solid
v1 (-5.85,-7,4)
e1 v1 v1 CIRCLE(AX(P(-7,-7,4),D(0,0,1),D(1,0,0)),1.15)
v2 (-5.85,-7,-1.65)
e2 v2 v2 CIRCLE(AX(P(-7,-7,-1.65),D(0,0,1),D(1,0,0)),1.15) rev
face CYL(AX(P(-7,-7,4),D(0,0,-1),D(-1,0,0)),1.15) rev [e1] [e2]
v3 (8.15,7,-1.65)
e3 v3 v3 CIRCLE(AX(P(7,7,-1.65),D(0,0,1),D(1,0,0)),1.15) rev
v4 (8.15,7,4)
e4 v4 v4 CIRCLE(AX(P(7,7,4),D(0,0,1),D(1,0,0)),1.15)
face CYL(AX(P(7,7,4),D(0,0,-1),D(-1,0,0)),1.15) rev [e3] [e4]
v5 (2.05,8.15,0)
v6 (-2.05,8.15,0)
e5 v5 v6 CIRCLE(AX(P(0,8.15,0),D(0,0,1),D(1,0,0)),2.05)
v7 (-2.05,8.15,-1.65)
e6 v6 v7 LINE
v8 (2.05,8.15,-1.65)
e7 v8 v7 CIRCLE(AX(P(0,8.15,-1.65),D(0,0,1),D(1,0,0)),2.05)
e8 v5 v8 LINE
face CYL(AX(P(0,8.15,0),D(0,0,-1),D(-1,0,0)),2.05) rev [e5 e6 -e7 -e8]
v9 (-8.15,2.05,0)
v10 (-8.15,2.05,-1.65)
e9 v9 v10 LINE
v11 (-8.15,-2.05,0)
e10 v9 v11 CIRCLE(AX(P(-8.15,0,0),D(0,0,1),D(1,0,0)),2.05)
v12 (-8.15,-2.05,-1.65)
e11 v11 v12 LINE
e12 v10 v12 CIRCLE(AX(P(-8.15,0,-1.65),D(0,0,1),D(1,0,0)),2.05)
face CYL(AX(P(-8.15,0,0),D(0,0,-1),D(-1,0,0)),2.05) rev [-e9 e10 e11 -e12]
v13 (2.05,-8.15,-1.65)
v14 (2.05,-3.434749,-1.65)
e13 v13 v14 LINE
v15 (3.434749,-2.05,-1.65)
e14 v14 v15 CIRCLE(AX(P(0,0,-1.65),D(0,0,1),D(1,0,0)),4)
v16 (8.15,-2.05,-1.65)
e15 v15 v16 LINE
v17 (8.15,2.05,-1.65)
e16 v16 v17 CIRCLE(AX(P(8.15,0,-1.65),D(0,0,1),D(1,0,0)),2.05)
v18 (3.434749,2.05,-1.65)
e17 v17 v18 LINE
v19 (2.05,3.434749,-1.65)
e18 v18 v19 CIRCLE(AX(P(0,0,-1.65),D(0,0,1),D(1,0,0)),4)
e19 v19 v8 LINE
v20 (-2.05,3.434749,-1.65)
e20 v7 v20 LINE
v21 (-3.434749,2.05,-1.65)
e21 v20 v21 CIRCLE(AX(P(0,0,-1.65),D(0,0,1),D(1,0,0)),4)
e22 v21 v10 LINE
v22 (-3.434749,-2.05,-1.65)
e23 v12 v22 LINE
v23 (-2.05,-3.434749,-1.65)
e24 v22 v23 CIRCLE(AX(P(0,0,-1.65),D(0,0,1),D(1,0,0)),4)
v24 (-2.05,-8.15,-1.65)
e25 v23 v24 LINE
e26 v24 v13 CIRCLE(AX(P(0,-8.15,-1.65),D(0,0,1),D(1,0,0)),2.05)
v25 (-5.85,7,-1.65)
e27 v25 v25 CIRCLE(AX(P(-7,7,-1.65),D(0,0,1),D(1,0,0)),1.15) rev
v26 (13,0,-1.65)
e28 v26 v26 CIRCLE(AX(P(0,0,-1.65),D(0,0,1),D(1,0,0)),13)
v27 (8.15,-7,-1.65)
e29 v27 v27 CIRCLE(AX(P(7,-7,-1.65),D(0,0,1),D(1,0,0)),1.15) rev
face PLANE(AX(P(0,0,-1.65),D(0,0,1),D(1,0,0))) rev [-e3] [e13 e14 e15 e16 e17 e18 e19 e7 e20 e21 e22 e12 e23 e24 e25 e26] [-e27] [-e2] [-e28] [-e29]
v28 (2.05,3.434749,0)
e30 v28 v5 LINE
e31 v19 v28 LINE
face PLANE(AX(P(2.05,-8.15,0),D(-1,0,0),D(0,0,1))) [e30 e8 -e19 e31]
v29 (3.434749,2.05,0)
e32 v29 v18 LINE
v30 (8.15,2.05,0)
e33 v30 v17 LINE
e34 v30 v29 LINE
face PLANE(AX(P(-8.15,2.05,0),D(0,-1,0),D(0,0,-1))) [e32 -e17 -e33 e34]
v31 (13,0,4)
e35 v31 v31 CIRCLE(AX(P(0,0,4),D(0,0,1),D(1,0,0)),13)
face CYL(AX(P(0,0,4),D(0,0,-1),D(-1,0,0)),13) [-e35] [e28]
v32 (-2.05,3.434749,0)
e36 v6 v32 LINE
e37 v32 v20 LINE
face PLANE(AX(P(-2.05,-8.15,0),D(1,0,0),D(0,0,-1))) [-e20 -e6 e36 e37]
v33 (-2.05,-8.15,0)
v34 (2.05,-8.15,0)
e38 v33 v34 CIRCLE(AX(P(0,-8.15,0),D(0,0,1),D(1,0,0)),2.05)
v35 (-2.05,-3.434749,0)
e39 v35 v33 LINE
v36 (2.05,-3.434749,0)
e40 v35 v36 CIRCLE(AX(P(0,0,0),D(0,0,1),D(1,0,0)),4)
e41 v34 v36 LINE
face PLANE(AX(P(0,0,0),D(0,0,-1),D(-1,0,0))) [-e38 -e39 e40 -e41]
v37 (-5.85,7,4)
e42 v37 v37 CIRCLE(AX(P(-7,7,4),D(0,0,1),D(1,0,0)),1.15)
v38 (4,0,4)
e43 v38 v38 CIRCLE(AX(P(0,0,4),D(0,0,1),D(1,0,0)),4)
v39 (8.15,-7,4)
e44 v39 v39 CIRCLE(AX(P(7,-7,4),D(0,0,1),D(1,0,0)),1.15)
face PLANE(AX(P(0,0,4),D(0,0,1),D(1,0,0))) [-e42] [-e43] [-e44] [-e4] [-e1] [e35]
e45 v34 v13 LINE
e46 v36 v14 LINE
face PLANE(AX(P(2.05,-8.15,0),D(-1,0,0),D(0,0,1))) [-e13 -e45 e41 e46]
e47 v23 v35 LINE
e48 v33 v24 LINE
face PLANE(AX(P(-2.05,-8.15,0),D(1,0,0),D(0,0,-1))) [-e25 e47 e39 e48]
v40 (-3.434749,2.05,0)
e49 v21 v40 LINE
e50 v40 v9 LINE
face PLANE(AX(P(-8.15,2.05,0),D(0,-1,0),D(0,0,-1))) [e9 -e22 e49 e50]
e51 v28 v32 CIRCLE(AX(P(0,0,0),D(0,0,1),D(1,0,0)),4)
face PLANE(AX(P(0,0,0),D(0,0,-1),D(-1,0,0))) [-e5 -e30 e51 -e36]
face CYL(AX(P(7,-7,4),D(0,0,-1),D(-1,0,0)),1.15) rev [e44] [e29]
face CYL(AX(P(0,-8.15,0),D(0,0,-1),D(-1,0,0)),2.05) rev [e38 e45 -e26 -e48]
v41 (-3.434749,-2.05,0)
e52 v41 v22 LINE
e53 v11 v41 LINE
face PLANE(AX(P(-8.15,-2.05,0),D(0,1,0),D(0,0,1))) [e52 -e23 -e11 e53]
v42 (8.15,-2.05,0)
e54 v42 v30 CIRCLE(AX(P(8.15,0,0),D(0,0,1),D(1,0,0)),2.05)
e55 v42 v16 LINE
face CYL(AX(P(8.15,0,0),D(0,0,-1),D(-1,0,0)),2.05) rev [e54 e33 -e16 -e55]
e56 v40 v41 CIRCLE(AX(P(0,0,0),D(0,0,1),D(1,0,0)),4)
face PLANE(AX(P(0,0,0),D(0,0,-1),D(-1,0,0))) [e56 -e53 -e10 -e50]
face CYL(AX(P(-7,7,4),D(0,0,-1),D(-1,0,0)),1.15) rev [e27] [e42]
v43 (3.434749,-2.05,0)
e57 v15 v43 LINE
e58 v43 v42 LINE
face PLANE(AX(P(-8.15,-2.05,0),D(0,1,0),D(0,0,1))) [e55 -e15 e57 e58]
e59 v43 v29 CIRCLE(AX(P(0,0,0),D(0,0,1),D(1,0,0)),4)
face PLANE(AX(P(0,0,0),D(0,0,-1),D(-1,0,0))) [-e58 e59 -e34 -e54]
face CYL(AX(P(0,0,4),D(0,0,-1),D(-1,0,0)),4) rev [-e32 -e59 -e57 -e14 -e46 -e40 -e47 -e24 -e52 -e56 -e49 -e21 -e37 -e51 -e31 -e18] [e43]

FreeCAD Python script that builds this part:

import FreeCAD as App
import Part
import Sketcher


def add_polygon(sketch, points):
    """Adds a closed chain of lines whose ends are joined by coincident constraints."""
    first, n = sketch.GeometryCount, len(points)
    for a, b in zip(points, points[1:] + points[:1]):
        sketch.addGeometry(Part.LineSegment(App.Vector(*a, 0), App.Vector(*b, 0)), False)
    for i in range(n):
        sketch.addConstraint(Sketcher.Constraint("Coincident", first + i, 2, first + (i + 1) % n, 1))

doc = App.newDocument("Part")
params = doc.addObject("Spreadsheet::Sheet", "Params")
for row, (alias, value) in enumerate([
    ("sketch1_diameter", "26 mm"),
    ("sketch1_diameter2", "8 mm"),
    ("pad1_length", "4 mm"),
    ("sketch2_diameter", "26 mm"),
    ("pad2_length", "1.65 mm"),
    ("sketch3_diameter", "7 mm"),
    ("pocket1_length", "1.65 mm"),
    ("sketch4_width", "16.3 mm"),
    ("sketch4_height", "4.1 mm"),
    ("pocket2_length", "1.65 mm"),
    ("sketch5_width", "4.1 mm"),
    ("sketch5_height", "16.3 mm"),
    ("pocket3_length", "1.65 mm"),
    ("sketch6_diameter", "4.1 mm"),
    ("pocket4_length", "1.65 mm"),
    ("sketch7_diameter", "2.3 mm"),
    ("sketch8_diameter", "8 mm"),
    ("pocket6_length", "1.65 mm"),
], start=1):
    params.set(f"A{row}", alias)
    params.set(f"B{row}", "=" + value)
    params.setAlias(f"B{row}", alias)

body = doc.addObject("PartDesign::Body", "Body")

sketch1 = doc.addObject("Sketcher::SketchObject", "Sketch")
body.addObject(sketch1)
sketch1.AttachmentSupport = (doc.XY_Plane, [""])
sketch1.MapMode = "FlatFace"
sketch1.addGeometry([
    Part.Circle(App.Vector(0, 0, 0), App.Vector(0, 0, 1), 13),
    Part.Circle(App.Vector(0, 0, 0), App.Vector(0, 0, 1), 4),
], False)
sketch1.addConstraint([
    Sketcher.Constraint("Coincident", 0, 3, -1, 1),
    Sketcher.Constraint("Coincident", 1, 3, -1, 1),
    Sketcher.Constraint("Diameter", 0, 26.0),
    Sketcher.Constraint("Diameter", 1, 8.0),
])
sketch1.setExpression("Constraints[2]", "Params.sketch1_diameter")
sketch1.setExpression("Constraints[3]", "Params.sketch1_diameter2")
pad1 = doc.addObject("PartDesign::Pad", "Pad")
body.addObject(pad1)
pad1.Profile = sketch1
pad1.setExpression("Length", "Params.pad1_length")

sketch2 = doc.addObject("Sketcher::SketchObject", "Sketch001")
body.addObject(sketch2)
sketch2.AttachmentSupport = (doc.XY_Plane, [""])
sketch2.MapMode = "FlatFace"
sketch2.AttachmentOffset = App.Placement(App.Vector(0, 0, -1.65), App.Rotation())
sketch2.addGeometry(Part.Circle(App.Vector(0, 0, 0), App.Vector(0, 0, 1), 13), False)
sketch2.addConstraint([
    Sketcher.Constraint("Coincident", 0, 3, -1, 1),
    Sketcher.Constraint("Diameter", 0, 26.0),
])
sketch2.setExpression("Constraints[1]", "Params.sketch2_diameter")
pad2 = doc.addObject("PartDesign::Pad", "Pad001")
body.addObject(pad2)
pad2.Profile = sketch2
pad2.setExpression("Length", "Params.pad2_length")

sketch3 = doc.addObject("Sketcher::SketchObject", "Sketch002")
body.addObject(sketch3)
sketch3.AttachmentSupport = (doc.XY_Plane, [""])
sketch3.MapMode = "FlatFace"
sketch3.AttachmentOffset = App.Placement(App.Vector(0, 0, -1.65), App.Rotation())
sketch3.addGeometry(Part.Circle(App.Vector(0, 0, 0), App.Vector(0, 0, 1), 3.5), False)
sketch3.addConstraint([
    Sketcher.Constraint("Coincident", 0, 3, -1, 1),
    Sketcher.Constraint("Diameter", 0, 7.0),
])
sketch3.setExpression("Constraints[1]", "Params.sketch3_diameter")
pocket1 = doc.addObject("PartDesign::Pocket", "Pocket")
body.addObject(pocket1)
pocket1.Profile = sketch3
pocket1.setExpression("Length", "Params.pocket1_length")
pocket1.Reversed = True

sketch4 = doc.addObject("Sketcher::SketchObject", "Sketch003")
body.addObject(sketch4)
sketch4.AttachmentSupport = (doc.XY_Plane, [""])
sketch4.MapMode = "FlatFace"
sketch4.AttachmentOffset = App.Placement(App.Vector(0, 0, -1.65), App.Rotation())
add_polygon(sketch4, [(-8.2, 2), (-8.2, -2), (8.2, -2), (8.2, 2)])
sketch4.addConstraint([
    Sketcher.Constraint("Vertical", 0),
    Sketcher.Constraint("Horizontal", 1),
    Sketcher.Constraint("Vertical", 2),
    Sketcher.Constraint("Horizontal", 3),
    Sketcher.Constraint("Symmetric", 0, 2, 2, 2, -1, 1),
    Sketcher.Constraint("DistanceX", 1, 1, 1, 2, 16.3),
    Sketcher.Constraint("DistanceY", 0, 2, 0, 1, 4.1),
])
sketch4.setExpression("Constraints[9]", "Params.sketch4_width")
sketch4.setExpression("Constraints[10]", "Params.sketch4_height")
pocket2 = doc.addObject("PartDesign::Pocket", "Pocket001")
body.addObject(pocket2)
pocket2.Profile = sketch4
pocket2.setExpression("Length", "Params.pocket2_length")
pocket2.Reversed = True

sketch5 = doc.addObject("Sketcher::SketchObject", "Sketch004")
body.addObject(sketch5)
sketch5.AttachmentSupport = (doc.XY_Plane, [""])
sketch5.MapMode = "FlatFace"
sketch5.AttachmentOffset = App.Placement(App.Vector(0, 0, -1.65), App.Rotation())
add_polygon(sketch5, [(-2, 8.2), (-2, -8.2), (2, -8.2), (2, 8.2)])
sketch5.addConstraint([
    Sketcher.Constraint("Vertical", 0),
    Sketcher.Constraint("Horizontal", 1),
    Sketcher.Constraint("Vertical", 2),
    Sketcher.Constraint("Horizontal", 3),
    Sketcher.Constraint("Symmetric", 0, 2, 2, 2, -1, 1),
    Sketcher.Constraint("DistanceX", 1, 1, 1, 2, 4.1),
    Sketcher.Constraint("DistanceY", 0, 2, 0, 1, 16.3),
])
sketch5.setExpression("Constraints[9]", "Params.sketch5_width")
sketch5.setExpression("Constraints[10]", "Params.sketch5_height")
pocket3 = doc.addObject("PartDesign::Pocket", "Pocket002")
body.addObject(pocket3)
pocket3.Profile = sketch5
pocket3.setExpression("Length", "Params.pocket3_length")
pocket3.Reversed = True

sketch6 = doc.addObject("Sketcher::SketchObject", "Sketch005")
body.addObject(sketch6)
sketch6.AttachmentSupport = (doc.XY_Plane, [""])
sketch6.MapMode = "FlatFace"
sketch6.AttachmentOffset = App.Placement(App.Vector(0, 0, -1.65), App.Rotation())
sketch6.addGeometry([
    Part.Circle(App.Vector(8.2, 0, 0), App.Vector(0, 0, 1), 2),
    Part.Circle(App.Vector(-8.2, 0, 0), App.Vector(0, 0, 1), 2),
    Part.Circle(App.Vector(0, 8.2, 0), App.Vector(0, 0, 1), 2),
    Part.Circle(App.Vector(0, -8.2, 0), App.Vector(0, 0, 1), 2),
], False)
sketch6.addConstraint([
    Sketcher.Constraint("Equal", 0, 1),
    Sketcher.Constraint("Equal", 1, 2),
    Sketcher.Constraint("Equal", 2, 3),
    Sketcher.Constraint("Symmetric", 0, 3, 1, 3, -1, 1),
    Sketcher.Constraint("Symmetric", 2, 3, 3, 3, -1, 1),
    Sketcher.Constraint("PointOnObject", 0, 3, -1),
    Sketcher.Constraint("PointOnObject", 2, 3, -2),
    Sketcher.Constraint("Diameter", 0, 4.1),
    Sketcher.Constraint("DistanceX", 1, 3, 0, 3, 16.3),
    Sketcher.Constraint("DistanceY", 3, 3, 2, 3, 16.3),
])
sketch6.setExpression("Constraints[7]", "Params.sketch6_diameter")
pocket4 = doc.addObject("PartDesign::Pocket", "Pocket003")
body.addObject(pocket4)
pocket4.Profile = sketch6
pocket4.setExpression("Length", "Params.pocket4_length")
pocket4.Reversed = True

sketch7 = doc.addObject("Sketcher::SketchObject", "Sketch006")
body.addObject(sketch7)
sketch7.AttachmentSupport = (doc.XY_Plane, [""])
sketch7.MapMode = "FlatFace"
sketch7.AttachmentOffset = App.Placement(App.Vector(0, 0, -50), App.Rotation())
sketch7.addGeometry([
    Part.Circle(App.Vector(7, 7, 0), App.Vector(0, 0, 1), 1.1),
    Part.Circle(App.Vector(-7, 7, 0), App.Vector(0, 0, 1), 1.1),
    Part.Circle(App.Vector(-7, -7, 0), App.Vector(0, 0, 1), 1.1),
    Part.Circle(App.Vector(7, -7, 0), App.Vector(0, 0, 1), 1.1),
], False)
sketch7.addConstraint([
    Sketcher.Constraint("Equal", 0, 1),
    Sketcher.Constraint("Equal", 1, 2),
    Sketcher.Constraint("Equal", 2, 3),
    Sketcher.Constraint("Symmetric", 0, 3, 2, 3, -1, 1),
    Sketcher.Constraint("Symmetric", 1, 3, 3, 3, -1, 1),
    Sketcher.Constraint("Symmetric", 0, 3, 1, 3, -2),
    Sketcher.Constraint("Diameter", 0, 2.3),
    Sketcher.Constraint("DistanceX", -1, 1, 0, 3, 7.0),
    Sketcher.Constraint("DistanceY", -1, 1, 0, 3, 7.0),
])
sketch7.setExpression("Constraints[6]", "Params.sketch7_diameter")
pocket5 = doc.addObject("PartDesign::Pocket", "Pocket004")
body.addObject(pocket5)
pocket5.Profile = sketch7
pocket5.Type = "ThroughAll"
pocket5.Reversed = True

sketch8 = doc.addObject("Sketcher::SketchObject", "Sketch007")
body.addObject(sketch8)
sketch8.AttachmentSupport = (doc.XY_Plane, [""])
sketch8.MapMode = "FlatFace"
sketch8.AttachmentOffset = App.Placement(App.Vector(0, 0, -1.65), App.Rotation())
sketch8.addGeometry(Part.Circle(App.Vector(0, 0, 0), App.Vector(0, 0, 1), 4), False)
sketch8.addConstraint([
    Sketcher.Constraint("Coincident", 0, 3, -1, 1),
    Sketcher.Constraint("Diameter", 0, 8.0),
])
sketch8.setExpression("Constraints[1]", "Params.sketch8_diameter")
pocket6 = doc.addObject("PartDesign::Pocket", "Pocket005")
body.addObject(pocket6)
pocket6.Profile = sketch8
pocket6.setExpression("Length", "Params.pocket6_length")
pocket6.Reversed = True

doc.recompute()
